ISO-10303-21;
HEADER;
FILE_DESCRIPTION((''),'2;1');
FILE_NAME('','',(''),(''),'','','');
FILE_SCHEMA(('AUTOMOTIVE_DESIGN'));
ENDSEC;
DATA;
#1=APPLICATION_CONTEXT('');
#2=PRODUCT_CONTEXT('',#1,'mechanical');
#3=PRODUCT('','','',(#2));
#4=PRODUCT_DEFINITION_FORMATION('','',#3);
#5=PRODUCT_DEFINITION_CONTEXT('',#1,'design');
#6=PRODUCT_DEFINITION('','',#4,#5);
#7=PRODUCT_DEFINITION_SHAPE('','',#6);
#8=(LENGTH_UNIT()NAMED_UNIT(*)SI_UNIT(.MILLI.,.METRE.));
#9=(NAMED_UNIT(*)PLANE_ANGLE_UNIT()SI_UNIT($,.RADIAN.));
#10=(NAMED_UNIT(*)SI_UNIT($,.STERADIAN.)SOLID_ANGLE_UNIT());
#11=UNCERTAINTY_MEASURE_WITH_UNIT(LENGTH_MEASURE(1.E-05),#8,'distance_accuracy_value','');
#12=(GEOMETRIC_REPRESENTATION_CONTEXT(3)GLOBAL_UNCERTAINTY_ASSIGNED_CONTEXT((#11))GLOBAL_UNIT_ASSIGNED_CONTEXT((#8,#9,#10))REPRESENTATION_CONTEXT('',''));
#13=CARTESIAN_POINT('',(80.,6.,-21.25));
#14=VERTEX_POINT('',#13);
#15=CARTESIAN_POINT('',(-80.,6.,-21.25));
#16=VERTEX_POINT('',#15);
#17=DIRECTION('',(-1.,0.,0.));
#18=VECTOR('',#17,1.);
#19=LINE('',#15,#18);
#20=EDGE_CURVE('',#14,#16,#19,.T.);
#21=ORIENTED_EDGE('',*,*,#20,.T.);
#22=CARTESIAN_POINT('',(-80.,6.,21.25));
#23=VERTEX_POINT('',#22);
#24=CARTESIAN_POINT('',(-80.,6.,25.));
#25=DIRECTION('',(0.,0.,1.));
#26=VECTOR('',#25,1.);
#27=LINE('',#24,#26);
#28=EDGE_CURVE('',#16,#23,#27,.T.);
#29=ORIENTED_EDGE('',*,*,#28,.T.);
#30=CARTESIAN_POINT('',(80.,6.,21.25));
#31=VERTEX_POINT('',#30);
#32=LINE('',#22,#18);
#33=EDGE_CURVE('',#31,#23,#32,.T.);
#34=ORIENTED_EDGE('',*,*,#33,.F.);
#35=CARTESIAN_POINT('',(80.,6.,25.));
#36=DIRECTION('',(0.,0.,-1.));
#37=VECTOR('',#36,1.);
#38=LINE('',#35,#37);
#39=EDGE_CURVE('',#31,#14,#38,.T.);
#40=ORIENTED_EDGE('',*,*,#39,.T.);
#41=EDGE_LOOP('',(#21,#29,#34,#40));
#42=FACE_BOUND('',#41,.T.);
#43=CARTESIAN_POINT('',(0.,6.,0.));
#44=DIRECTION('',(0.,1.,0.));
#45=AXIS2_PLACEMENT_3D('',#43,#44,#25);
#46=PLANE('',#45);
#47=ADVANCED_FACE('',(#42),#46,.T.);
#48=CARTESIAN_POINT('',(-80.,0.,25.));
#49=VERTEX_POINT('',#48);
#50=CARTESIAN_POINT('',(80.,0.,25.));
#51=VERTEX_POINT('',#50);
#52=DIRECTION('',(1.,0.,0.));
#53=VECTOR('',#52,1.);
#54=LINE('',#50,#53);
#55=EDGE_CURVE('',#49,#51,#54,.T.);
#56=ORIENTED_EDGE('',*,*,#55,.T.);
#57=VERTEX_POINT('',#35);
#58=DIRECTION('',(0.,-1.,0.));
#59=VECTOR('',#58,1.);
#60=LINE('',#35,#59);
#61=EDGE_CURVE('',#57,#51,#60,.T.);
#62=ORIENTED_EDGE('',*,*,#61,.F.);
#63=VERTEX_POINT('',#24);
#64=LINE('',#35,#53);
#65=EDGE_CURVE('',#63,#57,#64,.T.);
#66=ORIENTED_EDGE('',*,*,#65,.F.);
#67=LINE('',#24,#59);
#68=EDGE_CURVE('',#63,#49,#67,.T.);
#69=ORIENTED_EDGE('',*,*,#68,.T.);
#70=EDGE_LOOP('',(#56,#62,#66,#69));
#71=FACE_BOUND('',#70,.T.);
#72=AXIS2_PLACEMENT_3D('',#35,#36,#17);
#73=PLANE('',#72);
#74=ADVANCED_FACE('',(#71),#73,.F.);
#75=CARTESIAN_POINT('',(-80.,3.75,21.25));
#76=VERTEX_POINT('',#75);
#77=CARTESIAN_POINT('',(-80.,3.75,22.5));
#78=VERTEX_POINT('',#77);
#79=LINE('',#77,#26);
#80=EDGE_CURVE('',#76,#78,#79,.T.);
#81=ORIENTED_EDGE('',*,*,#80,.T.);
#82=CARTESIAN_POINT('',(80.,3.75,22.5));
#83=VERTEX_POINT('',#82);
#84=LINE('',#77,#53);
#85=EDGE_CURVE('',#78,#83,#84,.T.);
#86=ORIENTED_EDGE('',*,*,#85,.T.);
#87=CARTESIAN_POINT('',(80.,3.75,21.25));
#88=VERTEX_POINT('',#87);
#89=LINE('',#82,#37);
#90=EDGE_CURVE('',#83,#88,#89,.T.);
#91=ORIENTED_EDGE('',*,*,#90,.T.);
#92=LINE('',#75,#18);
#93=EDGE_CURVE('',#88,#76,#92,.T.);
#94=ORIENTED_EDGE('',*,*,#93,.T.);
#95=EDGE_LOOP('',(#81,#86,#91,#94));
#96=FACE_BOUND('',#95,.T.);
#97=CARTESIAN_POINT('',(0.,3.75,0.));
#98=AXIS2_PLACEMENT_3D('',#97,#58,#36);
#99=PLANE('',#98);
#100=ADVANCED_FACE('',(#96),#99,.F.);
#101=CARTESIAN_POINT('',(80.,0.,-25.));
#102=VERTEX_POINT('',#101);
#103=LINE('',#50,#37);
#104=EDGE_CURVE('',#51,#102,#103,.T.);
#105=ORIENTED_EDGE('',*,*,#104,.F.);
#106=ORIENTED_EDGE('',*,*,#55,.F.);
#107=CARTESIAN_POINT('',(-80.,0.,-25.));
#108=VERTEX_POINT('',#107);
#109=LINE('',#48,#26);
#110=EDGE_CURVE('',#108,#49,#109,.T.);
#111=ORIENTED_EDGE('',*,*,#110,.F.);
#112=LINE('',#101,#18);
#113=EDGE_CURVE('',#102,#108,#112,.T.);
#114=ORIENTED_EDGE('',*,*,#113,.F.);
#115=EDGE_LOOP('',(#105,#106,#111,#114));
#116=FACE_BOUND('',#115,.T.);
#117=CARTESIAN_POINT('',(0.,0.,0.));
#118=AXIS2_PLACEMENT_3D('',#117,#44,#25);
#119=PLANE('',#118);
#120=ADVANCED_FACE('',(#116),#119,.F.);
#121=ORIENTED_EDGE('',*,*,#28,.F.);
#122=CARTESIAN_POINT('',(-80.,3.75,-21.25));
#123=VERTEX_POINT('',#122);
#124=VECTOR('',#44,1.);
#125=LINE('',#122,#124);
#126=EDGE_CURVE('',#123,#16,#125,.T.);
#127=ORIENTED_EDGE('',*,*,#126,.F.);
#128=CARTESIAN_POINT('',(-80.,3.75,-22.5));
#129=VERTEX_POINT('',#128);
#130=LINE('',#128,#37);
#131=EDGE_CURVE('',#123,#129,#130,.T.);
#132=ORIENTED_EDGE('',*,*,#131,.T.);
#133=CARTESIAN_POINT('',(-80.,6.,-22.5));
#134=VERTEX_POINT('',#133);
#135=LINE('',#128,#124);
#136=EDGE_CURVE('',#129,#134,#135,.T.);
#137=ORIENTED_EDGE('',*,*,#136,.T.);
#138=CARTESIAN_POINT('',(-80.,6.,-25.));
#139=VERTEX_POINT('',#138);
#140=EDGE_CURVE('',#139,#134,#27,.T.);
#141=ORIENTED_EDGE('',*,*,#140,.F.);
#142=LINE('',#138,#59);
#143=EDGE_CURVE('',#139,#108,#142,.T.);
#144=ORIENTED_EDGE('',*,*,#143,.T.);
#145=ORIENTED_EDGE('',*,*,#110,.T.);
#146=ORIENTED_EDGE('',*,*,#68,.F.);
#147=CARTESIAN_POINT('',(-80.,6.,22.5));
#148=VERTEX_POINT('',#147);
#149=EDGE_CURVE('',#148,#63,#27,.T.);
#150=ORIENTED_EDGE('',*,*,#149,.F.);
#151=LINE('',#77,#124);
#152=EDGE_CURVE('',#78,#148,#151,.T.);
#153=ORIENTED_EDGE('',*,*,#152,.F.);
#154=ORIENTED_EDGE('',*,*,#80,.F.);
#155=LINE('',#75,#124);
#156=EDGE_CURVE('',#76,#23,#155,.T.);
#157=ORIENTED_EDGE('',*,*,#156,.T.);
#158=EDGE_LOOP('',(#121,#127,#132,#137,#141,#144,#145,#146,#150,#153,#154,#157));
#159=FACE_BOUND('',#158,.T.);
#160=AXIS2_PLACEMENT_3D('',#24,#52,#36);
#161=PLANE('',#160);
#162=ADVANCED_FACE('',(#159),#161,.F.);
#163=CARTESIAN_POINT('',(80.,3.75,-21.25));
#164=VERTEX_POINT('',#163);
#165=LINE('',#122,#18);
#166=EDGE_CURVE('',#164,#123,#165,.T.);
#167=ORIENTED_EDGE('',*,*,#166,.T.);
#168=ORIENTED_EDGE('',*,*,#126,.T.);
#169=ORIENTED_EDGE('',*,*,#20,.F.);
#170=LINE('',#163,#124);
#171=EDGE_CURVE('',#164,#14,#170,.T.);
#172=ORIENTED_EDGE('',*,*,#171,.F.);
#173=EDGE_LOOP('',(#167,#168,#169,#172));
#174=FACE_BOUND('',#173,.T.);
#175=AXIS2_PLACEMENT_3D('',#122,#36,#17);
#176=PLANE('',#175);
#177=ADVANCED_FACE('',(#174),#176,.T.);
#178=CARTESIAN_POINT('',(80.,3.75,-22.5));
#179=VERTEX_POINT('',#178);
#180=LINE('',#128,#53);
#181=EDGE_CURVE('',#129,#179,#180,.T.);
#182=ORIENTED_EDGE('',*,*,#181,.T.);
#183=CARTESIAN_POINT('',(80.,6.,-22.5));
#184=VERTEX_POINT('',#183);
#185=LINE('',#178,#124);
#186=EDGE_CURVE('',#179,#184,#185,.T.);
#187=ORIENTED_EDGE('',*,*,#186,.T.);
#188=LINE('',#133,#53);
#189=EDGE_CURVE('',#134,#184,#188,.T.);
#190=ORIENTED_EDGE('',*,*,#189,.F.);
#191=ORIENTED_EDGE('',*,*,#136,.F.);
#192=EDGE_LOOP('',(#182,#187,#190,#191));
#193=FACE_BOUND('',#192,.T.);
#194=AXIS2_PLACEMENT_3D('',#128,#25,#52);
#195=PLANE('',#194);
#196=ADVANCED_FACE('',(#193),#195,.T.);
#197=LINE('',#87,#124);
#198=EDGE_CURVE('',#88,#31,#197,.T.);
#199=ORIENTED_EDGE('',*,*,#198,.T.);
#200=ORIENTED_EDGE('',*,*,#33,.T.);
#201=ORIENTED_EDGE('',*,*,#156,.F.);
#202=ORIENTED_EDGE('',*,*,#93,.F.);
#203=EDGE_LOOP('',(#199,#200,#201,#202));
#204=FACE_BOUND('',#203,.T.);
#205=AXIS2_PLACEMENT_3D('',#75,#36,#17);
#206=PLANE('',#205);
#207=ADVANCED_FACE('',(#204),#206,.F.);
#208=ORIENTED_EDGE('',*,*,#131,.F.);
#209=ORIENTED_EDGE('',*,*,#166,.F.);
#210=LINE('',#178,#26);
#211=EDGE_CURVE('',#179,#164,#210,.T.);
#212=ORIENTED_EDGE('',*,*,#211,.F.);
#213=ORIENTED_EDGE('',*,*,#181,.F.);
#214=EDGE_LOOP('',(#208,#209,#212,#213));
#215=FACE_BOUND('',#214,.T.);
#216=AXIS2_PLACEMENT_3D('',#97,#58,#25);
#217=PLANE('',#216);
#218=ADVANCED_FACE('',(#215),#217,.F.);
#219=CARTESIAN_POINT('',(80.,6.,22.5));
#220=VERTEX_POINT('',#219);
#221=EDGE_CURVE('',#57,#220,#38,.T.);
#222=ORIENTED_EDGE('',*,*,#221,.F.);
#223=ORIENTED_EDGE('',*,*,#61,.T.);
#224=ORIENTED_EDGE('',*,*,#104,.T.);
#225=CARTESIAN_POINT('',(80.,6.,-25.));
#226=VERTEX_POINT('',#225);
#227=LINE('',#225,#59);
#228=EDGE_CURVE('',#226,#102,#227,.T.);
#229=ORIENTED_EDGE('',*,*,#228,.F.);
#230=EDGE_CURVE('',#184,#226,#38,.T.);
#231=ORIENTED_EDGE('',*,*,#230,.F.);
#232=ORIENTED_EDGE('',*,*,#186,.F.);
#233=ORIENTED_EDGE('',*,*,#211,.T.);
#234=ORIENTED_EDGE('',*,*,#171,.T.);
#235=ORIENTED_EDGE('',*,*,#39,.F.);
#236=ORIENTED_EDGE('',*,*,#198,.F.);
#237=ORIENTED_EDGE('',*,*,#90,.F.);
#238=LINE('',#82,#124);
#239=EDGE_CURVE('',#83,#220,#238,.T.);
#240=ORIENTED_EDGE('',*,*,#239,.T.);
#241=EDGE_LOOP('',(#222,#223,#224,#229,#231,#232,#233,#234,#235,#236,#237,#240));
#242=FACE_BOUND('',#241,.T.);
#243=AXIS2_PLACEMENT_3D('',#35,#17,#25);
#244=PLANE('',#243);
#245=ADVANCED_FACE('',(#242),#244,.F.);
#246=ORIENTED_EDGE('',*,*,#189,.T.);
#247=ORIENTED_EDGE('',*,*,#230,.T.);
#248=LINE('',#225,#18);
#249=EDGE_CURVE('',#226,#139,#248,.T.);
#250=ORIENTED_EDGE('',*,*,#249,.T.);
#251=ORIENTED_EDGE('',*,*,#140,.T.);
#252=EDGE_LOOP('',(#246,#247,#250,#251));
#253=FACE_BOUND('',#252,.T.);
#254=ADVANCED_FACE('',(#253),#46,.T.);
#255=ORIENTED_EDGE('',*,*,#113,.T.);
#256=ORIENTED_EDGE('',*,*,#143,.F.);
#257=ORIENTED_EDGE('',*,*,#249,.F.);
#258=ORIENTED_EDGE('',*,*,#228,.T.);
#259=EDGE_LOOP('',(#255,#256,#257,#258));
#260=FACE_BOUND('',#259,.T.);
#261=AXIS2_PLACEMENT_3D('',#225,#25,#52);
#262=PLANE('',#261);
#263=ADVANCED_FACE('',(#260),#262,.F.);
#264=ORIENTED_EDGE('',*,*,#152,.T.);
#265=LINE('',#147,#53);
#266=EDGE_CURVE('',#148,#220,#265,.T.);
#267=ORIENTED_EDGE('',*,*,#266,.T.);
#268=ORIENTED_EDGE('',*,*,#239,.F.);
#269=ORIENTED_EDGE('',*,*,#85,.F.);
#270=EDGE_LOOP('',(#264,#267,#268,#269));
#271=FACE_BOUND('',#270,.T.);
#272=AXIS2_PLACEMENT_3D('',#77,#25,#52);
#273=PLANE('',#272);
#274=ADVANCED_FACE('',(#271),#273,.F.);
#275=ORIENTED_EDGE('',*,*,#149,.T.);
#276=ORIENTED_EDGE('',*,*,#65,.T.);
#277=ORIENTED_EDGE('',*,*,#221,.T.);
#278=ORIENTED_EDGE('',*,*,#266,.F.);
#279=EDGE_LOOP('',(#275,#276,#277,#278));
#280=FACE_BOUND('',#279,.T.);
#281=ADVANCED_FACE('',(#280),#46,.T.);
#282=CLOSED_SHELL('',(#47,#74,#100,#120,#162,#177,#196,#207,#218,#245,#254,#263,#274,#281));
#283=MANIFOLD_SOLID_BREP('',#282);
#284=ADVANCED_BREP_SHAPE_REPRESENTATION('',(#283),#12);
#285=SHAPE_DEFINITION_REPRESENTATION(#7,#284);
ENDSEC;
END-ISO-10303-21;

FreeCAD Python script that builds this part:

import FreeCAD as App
import Part
import Sketcher
from FreeCAD import Vector
Q = App.Units.Quantity


def add_polygon(sketch, points):
    """Adds a closed chain of lines whose ends are joined by coincident constraints."""
    first, n = sketch.GeometryCount, len(points)
    for a, b in zip(points, points[1:] + points[:1]):
        sketch.addGeometry(Part.LineSegment(App.Vector(*a, 0), App.Vector(*b, 0)), False)
    for i in range(n):
        sketch.addConstraint(Sketcher.Constraint("Coincident", first + i, 2, first + (i + 1) % n, 1))

doc = App.newDocument("Part")
params = doc.addObject("Spreadsheet::Sheet", "Params")
for row, (alias, value) in enumerate([
    ("sketch1_width", "160 mm"),
    ("sketch1_height", "50 mm"),
    ("pad1_length", "6 mm"),
    ("sketch2_width", "160 mm"),
    ("sketch2_height", "1.25 mm"),
    ("pocket1_length", "2.25 mm"),
], start=1):
    params.set(f"A{row}", alias)
    params.set(f"B{row}", "=" + value)
    params.setAlias(f"B{row}", alias)

body = doc.addObject("PartDesign::Body", "Body")

# Sketch on XZ plane
sketch1 = body.newObject("Sketcher::SketchObject", "Sketch")
sketch1.AttachmentSupport = (doc.getObject("XZ_Plane"), [""])
sketch1.MapMode = "FlatFace"
add_polygon(sketch1, [(-80, -25), (-80, 25), (80, 25), (80, -25)])  # lines 0-3
sketch1.addConstraint([
    Sketcher.Constraint("Vertical", 0),
    Sketcher.Constraint("Horizontal", 1),
    Sketcher.Constraint("Vertical", 2),
    Sketcher.Constraint("Horizontal", 3),
    Sketcher.Constraint("Symmetric", 0, 2, 2, 2, -1, 1),
    Sketcher.Constraint("DistanceX", 1, 1, 1, 2, Q("160 mm")),
    Sketcher.Constraint("DistanceY", 0, 1, 0, 2, Q("50 mm")),
])
sketch1.setExpression("Constraints[9]", "Params.sketch1_width")
sketch1.setExpression("Constraints[10]", "Params.sketch1_height")
pad1 = body.newObject("PartDesign::Pad", "Pad")
pad1.Profile = sketch1
pad1.setExpression("Length", "Params.pad1_length")
pad1.Reversed = True

# Sketch on XZ plane
sketch2 = body.newObject("Sketcher::SketchObject", "Sketch001")
sketch2.AttachmentSupport = (doc.getObject("XZ_Plane"), [""])
sketch2.MapMode = "FlatFace"
sketch2.AttachmentOffset = App.Placement(Vector(0, 0, -6), App.Rotation())
add_polygon(sketch2, [(-80, 21.2), (-80, 22.5), (80, 22.5), (80, 21.2)])  # lines 0-3
sketch2.addConstraint([
    Sketcher.Constraint("Vertical", 0),
    Sketcher.Constraint("Horizontal", 1),
    Sketcher.Constraint("Vertical", 2),
    Sketcher.Constraint("Horizontal", 3),
    Sketcher.Constraint("DistanceX", 1, 1, 1, 2, Q("160 mm")),
    Sketcher.Constraint("DistanceX", 0, 2, -1, 1, Q("80 mm")),
    Sketcher.Constraint("DistanceY", 0, 1, 0, 2, Q("1.25 mm")),
    Sketcher.Constraint("DistanceY", -1, 1, 0, 2, Q("22.5 mm")),
])
sketch2.setExpression("Constraints[8]", "Params.sketch2_width")
sketch2.setExpression("Constraints[10]", "Params.sketch2_height")
pocket1 = body.newObject("PartDesign::Pocket", "Pocket")
pocket1.Profile = sketch2
pocket1.setExpression("Length", "Params.pocket1_length")
pocket1.Reversed = True
doc.recompute()

mirrored = body.newObject("PartDesign::Mirrored", "Mirrored")
mirrored.Originals = [pocket1]
mirrored.MirrorPlane = (doc.getObject("XY_Plane"), [""])
body.Tip = mirrored

doc.recompute()
